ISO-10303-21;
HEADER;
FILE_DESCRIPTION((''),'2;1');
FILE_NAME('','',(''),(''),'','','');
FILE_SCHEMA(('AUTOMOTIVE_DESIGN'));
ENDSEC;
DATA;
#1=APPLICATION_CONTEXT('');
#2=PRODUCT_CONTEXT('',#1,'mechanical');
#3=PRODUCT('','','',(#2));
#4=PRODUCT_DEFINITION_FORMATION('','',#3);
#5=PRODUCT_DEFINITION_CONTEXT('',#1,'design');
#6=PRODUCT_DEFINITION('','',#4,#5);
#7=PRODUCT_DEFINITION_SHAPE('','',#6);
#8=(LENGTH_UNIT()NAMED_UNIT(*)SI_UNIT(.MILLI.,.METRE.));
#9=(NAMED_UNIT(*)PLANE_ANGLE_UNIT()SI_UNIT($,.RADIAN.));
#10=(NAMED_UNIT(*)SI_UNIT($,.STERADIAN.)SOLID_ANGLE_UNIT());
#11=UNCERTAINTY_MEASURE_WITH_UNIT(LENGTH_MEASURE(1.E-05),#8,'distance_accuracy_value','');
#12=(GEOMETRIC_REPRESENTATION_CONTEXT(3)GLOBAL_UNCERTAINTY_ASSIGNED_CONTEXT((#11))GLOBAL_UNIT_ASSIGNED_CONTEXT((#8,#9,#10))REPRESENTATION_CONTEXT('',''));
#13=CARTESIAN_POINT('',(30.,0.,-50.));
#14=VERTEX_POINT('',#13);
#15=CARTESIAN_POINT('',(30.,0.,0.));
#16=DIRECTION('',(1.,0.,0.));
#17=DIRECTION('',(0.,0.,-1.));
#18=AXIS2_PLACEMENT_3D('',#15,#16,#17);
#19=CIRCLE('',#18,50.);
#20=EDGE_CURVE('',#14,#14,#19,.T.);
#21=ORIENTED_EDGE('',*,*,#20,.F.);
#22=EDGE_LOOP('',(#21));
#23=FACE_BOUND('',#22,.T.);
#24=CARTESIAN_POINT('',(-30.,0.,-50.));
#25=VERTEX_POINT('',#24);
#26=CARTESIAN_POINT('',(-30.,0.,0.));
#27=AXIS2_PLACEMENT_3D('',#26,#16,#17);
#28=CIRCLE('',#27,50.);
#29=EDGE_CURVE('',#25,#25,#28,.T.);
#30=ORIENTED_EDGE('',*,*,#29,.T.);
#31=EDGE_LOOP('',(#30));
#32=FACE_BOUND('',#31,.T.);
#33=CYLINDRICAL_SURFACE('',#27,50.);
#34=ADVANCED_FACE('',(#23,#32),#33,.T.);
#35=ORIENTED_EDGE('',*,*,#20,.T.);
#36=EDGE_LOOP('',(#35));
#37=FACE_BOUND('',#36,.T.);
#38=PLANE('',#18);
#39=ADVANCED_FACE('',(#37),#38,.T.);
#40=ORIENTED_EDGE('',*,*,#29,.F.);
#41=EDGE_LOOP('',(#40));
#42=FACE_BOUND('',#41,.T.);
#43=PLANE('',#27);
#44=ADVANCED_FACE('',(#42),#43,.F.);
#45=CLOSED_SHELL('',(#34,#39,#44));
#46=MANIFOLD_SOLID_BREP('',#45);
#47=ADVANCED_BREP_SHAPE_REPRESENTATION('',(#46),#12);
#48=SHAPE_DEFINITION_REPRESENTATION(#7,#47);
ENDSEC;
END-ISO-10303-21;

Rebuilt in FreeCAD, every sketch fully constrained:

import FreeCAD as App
import Part
import Sketcher

doc = App.newDocument("Part")
body = doc.addObject("PartDesign::Body", "Body")

# Sketch on YZ plane
sketch1 = doc.addObject("Sketcher::SketchObject", "Sketch")
body.addObject(sketch1)
sketch1.AttachmentSupport = (doc.YZ_Plane, [""])
sketch1.MapMode = "FlatFace"
sketch1.addGeometry(Part.Circle(App.Vector(0, 0, 0), App.Vector(0, 0, 1), 50), False)
sketch1.addConstraint([
    Sketcher.Constraint("Coincident", 0, 3, -1, 1),
    Sketcher.Constraint("Diameter", 0, 100.0),
])
pad1 = doc.addObject("PartDesign::Pad", "Pad")
body.addObject(pad1)
pad1.Profile = sketch1
pad1.Type = "TwoLengths"
pad1.Length = 30
pad1.Length2 = 30

doc.recompute()
